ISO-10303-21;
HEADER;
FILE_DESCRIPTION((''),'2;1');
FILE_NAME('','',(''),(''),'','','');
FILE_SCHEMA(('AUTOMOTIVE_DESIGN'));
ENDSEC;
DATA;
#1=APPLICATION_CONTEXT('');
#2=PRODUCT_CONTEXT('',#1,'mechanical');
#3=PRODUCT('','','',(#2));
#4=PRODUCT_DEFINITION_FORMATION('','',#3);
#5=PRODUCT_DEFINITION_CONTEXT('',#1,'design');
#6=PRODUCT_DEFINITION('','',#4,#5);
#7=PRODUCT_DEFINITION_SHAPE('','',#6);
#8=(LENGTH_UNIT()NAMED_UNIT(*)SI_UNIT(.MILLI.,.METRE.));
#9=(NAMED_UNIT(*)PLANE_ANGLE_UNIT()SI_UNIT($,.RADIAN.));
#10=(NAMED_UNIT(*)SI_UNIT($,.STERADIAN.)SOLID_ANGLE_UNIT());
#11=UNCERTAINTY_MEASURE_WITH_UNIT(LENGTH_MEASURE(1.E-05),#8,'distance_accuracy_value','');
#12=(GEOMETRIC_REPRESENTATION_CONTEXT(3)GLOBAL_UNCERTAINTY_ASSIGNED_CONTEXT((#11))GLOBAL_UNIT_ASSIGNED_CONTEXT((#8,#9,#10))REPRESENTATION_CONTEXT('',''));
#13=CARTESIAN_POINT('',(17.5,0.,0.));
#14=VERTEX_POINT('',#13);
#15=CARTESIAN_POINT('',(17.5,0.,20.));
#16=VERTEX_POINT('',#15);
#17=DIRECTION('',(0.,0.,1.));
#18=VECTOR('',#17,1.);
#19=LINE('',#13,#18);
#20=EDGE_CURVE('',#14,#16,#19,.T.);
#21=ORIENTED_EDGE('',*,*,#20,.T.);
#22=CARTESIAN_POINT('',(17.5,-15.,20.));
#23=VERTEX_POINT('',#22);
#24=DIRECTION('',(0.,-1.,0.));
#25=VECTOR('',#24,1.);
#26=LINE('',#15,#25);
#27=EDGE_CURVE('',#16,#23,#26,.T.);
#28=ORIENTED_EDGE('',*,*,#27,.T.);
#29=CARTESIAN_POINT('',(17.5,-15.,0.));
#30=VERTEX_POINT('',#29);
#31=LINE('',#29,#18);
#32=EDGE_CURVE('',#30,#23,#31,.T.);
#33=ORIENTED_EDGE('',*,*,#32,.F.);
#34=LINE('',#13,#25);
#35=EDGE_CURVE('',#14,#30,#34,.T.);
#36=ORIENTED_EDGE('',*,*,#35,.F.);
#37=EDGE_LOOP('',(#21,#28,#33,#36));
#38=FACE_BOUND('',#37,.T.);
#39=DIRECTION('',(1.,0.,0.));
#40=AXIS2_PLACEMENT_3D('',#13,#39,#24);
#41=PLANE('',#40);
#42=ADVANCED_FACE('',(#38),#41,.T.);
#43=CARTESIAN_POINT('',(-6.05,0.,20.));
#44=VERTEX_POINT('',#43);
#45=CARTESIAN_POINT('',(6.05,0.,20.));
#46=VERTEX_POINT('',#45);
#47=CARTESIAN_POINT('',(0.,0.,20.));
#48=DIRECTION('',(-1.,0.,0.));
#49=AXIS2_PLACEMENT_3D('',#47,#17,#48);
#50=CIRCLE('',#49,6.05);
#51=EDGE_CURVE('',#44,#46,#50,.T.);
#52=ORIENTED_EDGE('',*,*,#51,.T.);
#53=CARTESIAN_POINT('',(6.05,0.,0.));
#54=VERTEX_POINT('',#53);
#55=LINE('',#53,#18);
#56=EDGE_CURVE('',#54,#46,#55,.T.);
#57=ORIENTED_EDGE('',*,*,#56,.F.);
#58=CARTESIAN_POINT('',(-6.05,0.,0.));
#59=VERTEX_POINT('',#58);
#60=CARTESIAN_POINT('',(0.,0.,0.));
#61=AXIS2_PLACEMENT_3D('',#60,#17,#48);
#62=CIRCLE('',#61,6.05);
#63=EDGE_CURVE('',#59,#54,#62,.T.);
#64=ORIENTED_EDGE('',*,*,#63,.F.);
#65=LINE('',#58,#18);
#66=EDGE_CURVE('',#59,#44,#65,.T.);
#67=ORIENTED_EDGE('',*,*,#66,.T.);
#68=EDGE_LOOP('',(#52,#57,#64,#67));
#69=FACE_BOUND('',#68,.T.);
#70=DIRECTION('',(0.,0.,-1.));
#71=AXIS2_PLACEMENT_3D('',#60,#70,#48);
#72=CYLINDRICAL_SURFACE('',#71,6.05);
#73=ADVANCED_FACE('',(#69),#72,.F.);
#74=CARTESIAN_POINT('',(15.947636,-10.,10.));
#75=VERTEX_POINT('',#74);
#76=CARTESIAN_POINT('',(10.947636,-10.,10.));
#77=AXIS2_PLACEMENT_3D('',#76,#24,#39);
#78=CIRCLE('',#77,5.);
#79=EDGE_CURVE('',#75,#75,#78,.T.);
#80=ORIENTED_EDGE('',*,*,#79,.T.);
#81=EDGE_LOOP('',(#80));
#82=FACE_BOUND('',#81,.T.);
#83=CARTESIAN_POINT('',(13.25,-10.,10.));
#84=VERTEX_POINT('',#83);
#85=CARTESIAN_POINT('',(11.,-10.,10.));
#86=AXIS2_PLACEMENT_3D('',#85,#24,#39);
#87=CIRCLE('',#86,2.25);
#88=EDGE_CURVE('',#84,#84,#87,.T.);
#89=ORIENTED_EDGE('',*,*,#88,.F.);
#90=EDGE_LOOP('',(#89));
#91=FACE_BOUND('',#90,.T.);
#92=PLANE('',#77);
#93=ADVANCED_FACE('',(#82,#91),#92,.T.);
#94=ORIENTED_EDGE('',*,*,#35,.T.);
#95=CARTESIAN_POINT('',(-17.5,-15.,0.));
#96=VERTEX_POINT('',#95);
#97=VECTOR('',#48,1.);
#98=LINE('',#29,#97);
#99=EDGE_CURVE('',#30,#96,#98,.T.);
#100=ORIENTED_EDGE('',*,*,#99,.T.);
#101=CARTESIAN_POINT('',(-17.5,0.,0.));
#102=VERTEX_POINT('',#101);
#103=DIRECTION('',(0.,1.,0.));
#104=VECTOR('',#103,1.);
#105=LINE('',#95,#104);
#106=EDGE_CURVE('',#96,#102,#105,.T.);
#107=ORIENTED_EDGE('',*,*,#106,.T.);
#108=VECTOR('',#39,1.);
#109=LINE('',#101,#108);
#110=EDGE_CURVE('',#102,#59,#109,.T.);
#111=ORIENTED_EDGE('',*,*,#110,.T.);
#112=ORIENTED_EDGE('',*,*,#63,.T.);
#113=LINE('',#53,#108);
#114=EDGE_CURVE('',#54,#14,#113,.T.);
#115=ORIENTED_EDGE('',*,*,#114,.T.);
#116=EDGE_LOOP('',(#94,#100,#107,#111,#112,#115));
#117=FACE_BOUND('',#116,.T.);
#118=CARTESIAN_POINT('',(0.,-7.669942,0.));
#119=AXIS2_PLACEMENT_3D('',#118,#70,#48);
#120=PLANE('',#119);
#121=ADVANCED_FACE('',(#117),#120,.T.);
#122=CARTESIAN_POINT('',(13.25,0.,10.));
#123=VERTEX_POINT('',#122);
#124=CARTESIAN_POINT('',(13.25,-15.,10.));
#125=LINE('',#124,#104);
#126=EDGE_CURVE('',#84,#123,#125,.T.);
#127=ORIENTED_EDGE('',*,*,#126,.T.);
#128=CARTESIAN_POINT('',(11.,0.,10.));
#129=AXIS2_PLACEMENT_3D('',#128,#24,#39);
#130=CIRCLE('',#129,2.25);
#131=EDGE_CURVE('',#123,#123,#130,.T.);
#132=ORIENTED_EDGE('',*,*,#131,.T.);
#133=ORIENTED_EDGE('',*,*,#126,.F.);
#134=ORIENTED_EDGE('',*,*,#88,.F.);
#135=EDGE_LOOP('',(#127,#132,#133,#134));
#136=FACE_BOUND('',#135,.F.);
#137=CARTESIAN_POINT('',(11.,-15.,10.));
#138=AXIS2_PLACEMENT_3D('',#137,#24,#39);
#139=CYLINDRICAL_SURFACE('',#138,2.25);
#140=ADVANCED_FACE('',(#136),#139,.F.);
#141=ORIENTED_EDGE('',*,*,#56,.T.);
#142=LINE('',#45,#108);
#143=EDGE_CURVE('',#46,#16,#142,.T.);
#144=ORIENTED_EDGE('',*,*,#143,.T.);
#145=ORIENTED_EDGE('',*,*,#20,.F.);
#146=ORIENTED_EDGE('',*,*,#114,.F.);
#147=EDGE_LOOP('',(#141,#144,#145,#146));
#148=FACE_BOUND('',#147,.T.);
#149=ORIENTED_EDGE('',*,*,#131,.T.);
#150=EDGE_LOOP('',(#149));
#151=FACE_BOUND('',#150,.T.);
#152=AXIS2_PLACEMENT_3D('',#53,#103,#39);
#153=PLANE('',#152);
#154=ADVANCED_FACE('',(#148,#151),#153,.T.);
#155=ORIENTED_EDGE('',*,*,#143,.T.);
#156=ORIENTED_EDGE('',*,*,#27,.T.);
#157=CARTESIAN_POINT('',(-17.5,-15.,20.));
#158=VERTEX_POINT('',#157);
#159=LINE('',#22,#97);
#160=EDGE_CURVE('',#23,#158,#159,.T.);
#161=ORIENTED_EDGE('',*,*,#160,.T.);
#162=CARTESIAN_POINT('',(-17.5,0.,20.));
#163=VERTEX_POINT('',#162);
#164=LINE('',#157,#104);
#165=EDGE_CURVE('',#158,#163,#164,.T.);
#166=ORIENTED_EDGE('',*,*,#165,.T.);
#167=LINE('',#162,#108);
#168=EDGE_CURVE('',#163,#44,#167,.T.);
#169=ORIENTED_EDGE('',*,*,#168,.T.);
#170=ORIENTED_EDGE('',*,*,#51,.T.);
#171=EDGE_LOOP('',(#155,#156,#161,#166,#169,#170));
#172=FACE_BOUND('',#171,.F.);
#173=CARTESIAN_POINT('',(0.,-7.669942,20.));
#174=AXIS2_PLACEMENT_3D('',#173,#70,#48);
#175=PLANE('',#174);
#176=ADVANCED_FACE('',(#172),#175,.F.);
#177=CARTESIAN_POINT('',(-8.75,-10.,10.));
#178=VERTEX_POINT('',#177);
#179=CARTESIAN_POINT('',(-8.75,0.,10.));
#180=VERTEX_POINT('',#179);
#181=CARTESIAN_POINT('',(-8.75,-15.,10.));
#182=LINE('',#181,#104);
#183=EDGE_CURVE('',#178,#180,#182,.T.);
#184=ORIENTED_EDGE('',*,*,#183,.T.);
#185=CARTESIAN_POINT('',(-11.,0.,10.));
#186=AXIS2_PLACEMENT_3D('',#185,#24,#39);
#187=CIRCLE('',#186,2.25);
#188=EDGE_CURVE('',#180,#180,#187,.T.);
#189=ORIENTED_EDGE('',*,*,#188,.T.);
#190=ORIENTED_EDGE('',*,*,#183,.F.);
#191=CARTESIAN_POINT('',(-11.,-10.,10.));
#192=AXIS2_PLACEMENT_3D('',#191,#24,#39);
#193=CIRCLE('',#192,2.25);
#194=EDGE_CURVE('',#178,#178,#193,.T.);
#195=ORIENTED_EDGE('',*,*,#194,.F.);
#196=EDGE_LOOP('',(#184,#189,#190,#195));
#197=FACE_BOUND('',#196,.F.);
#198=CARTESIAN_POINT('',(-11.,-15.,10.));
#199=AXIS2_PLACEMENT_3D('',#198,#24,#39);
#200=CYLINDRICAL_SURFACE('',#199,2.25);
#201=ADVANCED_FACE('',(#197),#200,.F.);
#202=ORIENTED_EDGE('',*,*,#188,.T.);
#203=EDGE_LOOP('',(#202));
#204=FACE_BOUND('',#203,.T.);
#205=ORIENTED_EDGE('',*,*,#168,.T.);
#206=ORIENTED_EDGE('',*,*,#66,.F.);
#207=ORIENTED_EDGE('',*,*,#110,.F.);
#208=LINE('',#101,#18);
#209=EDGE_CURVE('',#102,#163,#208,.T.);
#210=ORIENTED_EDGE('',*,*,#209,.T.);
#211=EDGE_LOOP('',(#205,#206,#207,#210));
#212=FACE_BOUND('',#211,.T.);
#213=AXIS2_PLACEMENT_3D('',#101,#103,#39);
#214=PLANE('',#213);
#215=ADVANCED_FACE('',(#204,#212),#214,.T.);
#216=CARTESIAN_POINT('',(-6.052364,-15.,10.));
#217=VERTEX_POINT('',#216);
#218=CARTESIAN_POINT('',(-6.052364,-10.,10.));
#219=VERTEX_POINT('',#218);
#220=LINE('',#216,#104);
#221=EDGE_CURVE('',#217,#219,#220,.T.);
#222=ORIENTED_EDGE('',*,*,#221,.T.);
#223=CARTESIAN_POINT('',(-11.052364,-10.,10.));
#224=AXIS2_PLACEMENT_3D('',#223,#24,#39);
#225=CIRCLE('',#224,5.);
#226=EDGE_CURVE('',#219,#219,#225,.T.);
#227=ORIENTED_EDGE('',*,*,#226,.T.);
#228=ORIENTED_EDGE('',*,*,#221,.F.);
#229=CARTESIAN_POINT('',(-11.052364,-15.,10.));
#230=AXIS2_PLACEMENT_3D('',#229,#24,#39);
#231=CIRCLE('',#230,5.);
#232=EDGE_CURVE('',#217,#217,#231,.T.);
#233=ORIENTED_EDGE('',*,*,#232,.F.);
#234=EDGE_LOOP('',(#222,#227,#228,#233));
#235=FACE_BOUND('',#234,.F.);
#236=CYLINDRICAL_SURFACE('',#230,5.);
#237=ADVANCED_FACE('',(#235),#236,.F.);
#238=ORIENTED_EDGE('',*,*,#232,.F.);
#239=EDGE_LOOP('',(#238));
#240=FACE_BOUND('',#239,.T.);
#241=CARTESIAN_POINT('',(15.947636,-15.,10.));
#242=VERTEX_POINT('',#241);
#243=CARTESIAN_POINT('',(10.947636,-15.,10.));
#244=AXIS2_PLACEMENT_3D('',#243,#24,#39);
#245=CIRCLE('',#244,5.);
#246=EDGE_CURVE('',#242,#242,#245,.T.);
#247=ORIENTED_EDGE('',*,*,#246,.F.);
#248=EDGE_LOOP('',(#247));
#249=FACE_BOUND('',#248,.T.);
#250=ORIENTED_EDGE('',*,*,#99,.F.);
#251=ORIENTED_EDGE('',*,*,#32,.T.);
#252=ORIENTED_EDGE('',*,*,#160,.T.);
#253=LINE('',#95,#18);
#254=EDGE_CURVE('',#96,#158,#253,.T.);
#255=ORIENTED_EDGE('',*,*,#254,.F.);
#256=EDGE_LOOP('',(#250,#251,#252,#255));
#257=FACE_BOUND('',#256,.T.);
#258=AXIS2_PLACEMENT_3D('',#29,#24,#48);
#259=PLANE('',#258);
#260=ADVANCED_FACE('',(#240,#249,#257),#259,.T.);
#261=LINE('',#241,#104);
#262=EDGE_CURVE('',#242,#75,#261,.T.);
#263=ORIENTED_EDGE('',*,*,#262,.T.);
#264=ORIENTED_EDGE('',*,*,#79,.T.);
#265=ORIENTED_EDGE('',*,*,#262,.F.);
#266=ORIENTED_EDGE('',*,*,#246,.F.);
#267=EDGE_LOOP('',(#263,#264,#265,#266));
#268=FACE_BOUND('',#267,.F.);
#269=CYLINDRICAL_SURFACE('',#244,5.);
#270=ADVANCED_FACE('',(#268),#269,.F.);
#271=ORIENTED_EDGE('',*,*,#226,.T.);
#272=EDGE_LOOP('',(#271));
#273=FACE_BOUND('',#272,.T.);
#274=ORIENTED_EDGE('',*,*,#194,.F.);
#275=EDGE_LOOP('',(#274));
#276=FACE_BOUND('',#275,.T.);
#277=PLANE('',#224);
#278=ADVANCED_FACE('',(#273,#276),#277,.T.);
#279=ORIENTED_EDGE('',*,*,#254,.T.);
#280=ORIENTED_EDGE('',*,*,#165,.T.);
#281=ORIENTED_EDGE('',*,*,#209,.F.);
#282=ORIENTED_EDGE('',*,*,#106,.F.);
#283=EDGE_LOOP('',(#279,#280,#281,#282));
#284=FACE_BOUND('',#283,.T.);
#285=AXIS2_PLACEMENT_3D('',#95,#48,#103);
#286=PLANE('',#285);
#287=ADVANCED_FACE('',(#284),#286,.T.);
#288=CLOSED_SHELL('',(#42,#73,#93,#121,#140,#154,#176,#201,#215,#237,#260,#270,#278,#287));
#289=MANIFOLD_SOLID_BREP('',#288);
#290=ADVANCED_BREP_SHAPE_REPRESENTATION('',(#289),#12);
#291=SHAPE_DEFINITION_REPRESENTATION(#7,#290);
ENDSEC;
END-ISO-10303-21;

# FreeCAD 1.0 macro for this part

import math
import FreeCAD as App
import Part
import Sketcher

doc = App.newDocument("Part")
body = doc.addObject("PartDesign::Body", "Body")

sketch1 = doc.addObject("Sketcher::SketchObject", "Sketch")
body.addObject(sketch1)
sketch1.AttachmentSupport = (doc.XY_Plane, [""])
sketch1.MapMode = "FlatFace"
sketch1.addGeometry([
    Part.ArcOfCircle(Part.Circle(App.Vector(0, 0, 0), App.Vector(0, 0, 1), 6.05), math.radians(180), math.radians(360)),
    Part.LineSegment(App.Vector(-6.05, 0, 0), App.Vector(-17.5, 0, 0)),
    Part.LineSegment(App.Vector(-17.5, 0, 0), App.Vector(-17.5, -15, 0)),
    Part.LineSegment(App.Vector(-17.5, -15, 0), App.Vector(17.5, -15, 0)),
    Part.LineSegment(App.Vector(17.5, -15, 0), App.Vector(17.5, 0, 0)),
    Part.LineSegment(App.Vector(17.5, 0, 0), App.Vector(6.05, 0, 0)),
], False)
sketch1.addConstraint([
    Sketcher.Constraint("Coincident", 0, 1, 1, 1),
    Sketcher.Constraint("Coincident", 1, 2, 2, 1),
    Sketcher.Constraint("Coincident", 2, 2, 3, 1),
    Sketcher.Constraint("Coincident", 3, 2, 4, 1),
    Sketcher.Constraint("Coincident", 4, 2, 5, 1),
    Sketcher.Constraint("Coincident", 5, 2, 0, 2),
    Sketcher.Constraint("Horizontal", 1),
    Sketcher.Constraint("Vertical", 2),
    Sketcher.Constraint("Horizontal", 3),
    Sketcher.Constraint("Vertical", 4),
    Sketcher.Constraint("Horizontal", 5),
    Sketcher.Constraint("Coincident", 0, 3, -1, 1),
    Sketcher.Constraint("Symmetric", 1, 2, 4, 2, -1, 1),
    Sketcher.Constraint("PointOnObject", 0, 1, -1),
    Sketcher.Constraint("DistanceX", 3, 1, 3, 2, 35.0),
    Sketcher.Constraint("DistanceY", 2, 2, 2, 1, 15.0),
    Sketcher.Constraint("Radius", 0, 6.05),
])
pad1 = doc.addObject("PartDesign::Pad", "Pad")
body.addObject(pad1)
pad1.Profile = sketch1
pad1.Length = 20

sketch2 = doc.addObject("Sketcher::SketchObject", "Sketch001")
body.addObject(sketch2)
sketch2.AttachmentSupport = (doc.XZ_Plane, [""])
sketch2.MapMode = "FlatFace"
sketch2.AttachmentOffset = App.Placement(App.Vector(0, 0, 15), App.Rotation())
sketch2.addGeometry([
    Part.Circle(App.Vector(-11, 10, 0), App.Vector(0, 0, 1), 2.25),
    Part.Circle(App.Vector(11, 10, 0), App.Vector(0, 0, 1), 2.25),
], False)
sketch2.addConstraint([
    Sketcher.Constraint("Equal", 0, 1),
    Sketcher.Constraint("Symmetric", 0, 3, 1, 3, -2),
    Sketcher.Constraint("Diameter", 0, 4.5),
    Sketcher.Constraint("DistanceX", 0, 3, -1, 1, 11.0),
    Sketcher.Constraint("DistanceY", -1, 1, 0, 3, 10.0),
])
pocket1 = doc.addObject("PartDesign::Pocket", "Pocket")
body.addObject(pocket1)
pocket1.Profile = sketch2
pocket1.Type = "ThroughAll"

sketch3 = doc.addObject("Sketcher::SketchObject", "Sketch002")
body.addObject(sketch3)
sketch3.AttachmentSupport = (doc.XZ_Plane, [""])
sketch3.MapMode = "FlatFace"
sketch3.AttachmentOffset = App.Placement(App.Vector(0, 0, 15), App.Rotation())
sketch3.addGeometry([
    Part.Circle(App.Vector(-11.052364, 10, 0), App.Vector(0, 0, 1), 5),
    Part.Circle(App.Vector(10.947636, 10, 0), App.Vector(0, 0, 1), 5),
], False)
sketch3.addConstraint([
    Sketcher.Constraint("Equal", 0, 1),
    Sketcher.Constraint("Horizontal", 0, 3, 1, 3),
    Sketcher.Constraint("Diameter", 0, 10.0),
    Sketcher.Constraint("DistanceY", -1, 1, 0, 3, 10.0),
    Sketcher.Constraint("DistanceX", 0, 3, 1, 3, 22.0),
    Sketcher.Constraint("DistanceX", 0, 3, -1, 1, 11.052364),
])
pocket2 = doc.addObject("PartDesign::Pocket", "Pocket001")
body.addObject(pocket2)
pocket2.Profile = sketch3
pocket2.Length = 5

doc.recompute()
